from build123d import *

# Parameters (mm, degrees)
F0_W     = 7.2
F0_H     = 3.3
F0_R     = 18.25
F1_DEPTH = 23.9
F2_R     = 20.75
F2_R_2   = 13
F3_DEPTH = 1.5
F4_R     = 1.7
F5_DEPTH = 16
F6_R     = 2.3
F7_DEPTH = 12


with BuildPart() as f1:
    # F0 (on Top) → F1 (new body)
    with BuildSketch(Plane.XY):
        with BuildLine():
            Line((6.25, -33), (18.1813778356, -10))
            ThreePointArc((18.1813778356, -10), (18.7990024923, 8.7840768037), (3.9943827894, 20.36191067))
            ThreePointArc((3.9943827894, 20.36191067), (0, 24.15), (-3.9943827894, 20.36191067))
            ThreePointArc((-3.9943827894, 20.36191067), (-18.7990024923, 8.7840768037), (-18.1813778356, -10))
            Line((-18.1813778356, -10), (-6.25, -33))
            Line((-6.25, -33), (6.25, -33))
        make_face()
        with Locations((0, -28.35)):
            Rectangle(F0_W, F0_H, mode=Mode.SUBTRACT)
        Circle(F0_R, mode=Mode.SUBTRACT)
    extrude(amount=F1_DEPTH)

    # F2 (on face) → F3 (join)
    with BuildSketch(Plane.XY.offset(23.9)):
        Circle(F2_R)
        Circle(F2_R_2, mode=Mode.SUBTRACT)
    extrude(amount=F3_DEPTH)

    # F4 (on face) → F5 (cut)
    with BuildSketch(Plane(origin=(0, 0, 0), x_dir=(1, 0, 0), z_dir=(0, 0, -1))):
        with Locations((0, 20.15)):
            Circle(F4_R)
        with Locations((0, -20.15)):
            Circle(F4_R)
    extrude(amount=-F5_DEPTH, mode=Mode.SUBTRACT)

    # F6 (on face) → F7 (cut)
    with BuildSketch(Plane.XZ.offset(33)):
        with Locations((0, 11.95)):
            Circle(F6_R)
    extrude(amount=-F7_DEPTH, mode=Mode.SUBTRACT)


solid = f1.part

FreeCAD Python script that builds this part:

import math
import FreeCAD as App
import Part
import Sketcher


def add_polygon(sketch, points):
    """Adds a closed chain of lines whose ends are joined by coincident constraints."""
    first, n = sketch.GeometryCount, len(points)
    for a, b in zip(points, points[1:] + points[:1]):
        sketch.addGeometry(Part.LineSegment(App.Vector(*a, 0), App.Vector(*b, 0)), False)
    for i in range(n):
        sketch.addConstraint(Sketcher.Constraint("Coincident", first + i, 2, first + (i + 1) % n, 1))

doc = App.newDocument("Part")
body = doc.addObject("PartDesign::Body", "Body")

# Sketch on XY plane
sketch1 = body.newObject("Sketcher::SketchObject", "Sketch")
sketch1.AttachmentSupport = (doc.getObject("XY_Plane"), [""])
sketch1.MapMode = "FlatFace"
sketch1.addGeometry(Part.LineSegment(App.Vector(6.25, -33, 0), App.Vector(18.181378, -10, 0)), False)  # 0
sketch1.addGeometry(Part.ArcOfCircle(Part.Circle(App.Vector(0, 0, 0), App.Vector(0, 0, 1), 20.75), math.radians(-28.81138), math.radians(78.901261)), False)  # 1
sketch1.addGeometry(Part.ArcOfCircle(Part.Circle(App.Vector(0, 20.15, 0), App.Vector(0, 0, 1), 4), math.radians(3.036818), math.radians(176.963182)), False)  # 2
sketch1.addGeometry(Part.ArcOfCircle(Part.Circle(App.Vector(0, 0, 0), App.Vector(0, 0, 1), 20.75), math.radians(101.098739), math.radians(208.81138)), False)  # 3
sketch1.addGeometry(Part.LineSegment(App.Vector(-18.181378, -10, 0), App.Vector(-6.25, -33, 0)), False)  # 4
sketch1.addGeometry(Part.LineSegment(App.Vector(-6.25, -33, 0), App.Vector(6.25, -33, 0)), False)  # 5
add_polygon(sketch1, [(3.6, -30), (-3.6, -30), (-3.6, -26.7), (3.6, -26.7)])  # lines 6-9
sketch1.addGeometry(Part.Circle(App.Vector(0, 0, 0), App.Vector(0, 0, 1), 18.25), False)  # 10
sketch1.addConstraint([
    Sketcher.Constraint("Coincident", 0, 2, 1, 1),
    Sketcher.Constraint("Coincident", 1, 2, 2, 1),
    Sketcher.Constraint("Coincident", 2, 2, 3, 1),
    Sketcher.Constraint("Coincident", 3, 2, 4, 1),
    Sketcher.Constraint("Coincident", 4, 2, 5, 1),
    Sketcher.Constraint("Coincident", 5, 2, 0, 1),
    Sketcher.Constraint("Horizontal", 5),
    Sketcher.Constraint("Horizontal", 6),
    Sketcher.Constraint("Vertical", 7),
    Sketcher.Constraint("Horizontal", 8),
    Sketcher.Constraint("Vertical", 9),
    Sketcher.Constraint("Coincident", 1, 3, -1, 1),
    Sketcher.Constraint("Coincident", 3, 3, -1, 1),
    Sketcher.Constraint("Coincident", 10, 3, -1, 1),
    Sketcher.Constraint("Equal", 1, 3),
    Sketcher.Constraint("PointOnObject", 2, 3, -2),
    Sketcher.Constraint("Horizontal", 0, 2, 3, 2),
    Sketcher.Constraint("Equal", 0, 4),
    Sketcher.Constraint("Radius", 2, 4.0),
    Sketcher.Constraint("Diameter", 10, 36.5),
    Sketcher.Constraint("Radius", 1, 20.75),
    Sketcher.Constraint("DistanceX", 5, 1, 5, 2, 12.5),
    Sketcher.Constraint("DistanceX", 6, 2, 6, 1, 7.2),
    Sketcher.Constraint("DistanceY", 7, 1, 7, 2, 3.3),
    Sketcher.Constraint("DistanceY", 0, 2, -1, 1, 10.0),
    Sketcher.Constraint("DistanceY", 4, 2, -1, 1, 33.0),
    Sketcher.Constraint("DistanceY", 6, 2, -1, 1, 30.0),
    Sketcher.Constraint("DistanceX", 6, 2, -1, 1, 3.6),
    Sketcher.Constraint("DistanceY", -1, 1, 2, 3, 20.15),
])
pad1 = body.newObject("PartDesign::Pad", "Pad")
pad1.Profile = sketch1
pad1.Length = 23.9

# Sketch on XY plane
sketch2 = body.newObject("Sketcher::SketchObject", "Sketch001")
sketch2.AttachmentSupport = (doc.getObject("XY_Plane"), [""])
sketch2.MapMode = "FlatFace"
sketch2.AttachmentOffset = App.Placement(App.Vector(0, 0, 23.9), App.Rotation())
sketch2.addGeometry([
    Part.Circle(App.Vector(0, 0, 0), App.Vector(0, 0, 1), 20.75),
    Part.Circle(App.Vector(0, 0, 0), App.Vector(0, 0, 1), 13),
], False)
sketch2.addConstraint([
    Sketcher.Constraint("Coincident", 0, 3, -1, 1),
    Sketcher.Constraint("Coincident", 1, 3, -1, 1),
    Sketcher.Constraint("Diameter", 1, 26.0),
    Sketcher.Constraint("Diameter", 0, 41.5),
])
pad2 = body.newObject("PartDesign::Pad", "Pad001")
pad2.Profile = sketch2
pad2.Length = 1.5

# Sketch on XY plane
sketch3 = body.newObject("Sketcher::SketchObject", "Sketch002")
sketch3.AttachmentSupport = (doc.getObject("XY_Plane"), [""])
sketch3.MapMode = "FlatFace"
sketch3.addGeometry([
    Part.Circle(App.Vector(0, -20.15, 0), App.Vector(0, 0, 1), 1.7),
    Part.Circle(App.Vector(0, 20.15, 0), App.Vector(0, 0, 1), 1.7),
], False)
sketch3.addConstraint([
    Sketcher.Constraint("Equal", 0, 1),
    Sketcher.Constraint("Symmetric", 0, 3, 1, 3, -1, 1),
    Sketcher.Constraint("PointOnObject", 0, 3, -2),
    Sketcher.Constraint("Diameter", 0, 3.4),
    Sketcher.Constraint("DistanceY", 0, 3, 1, 3, 40.3),
])
pocket1 = body.newObject("PartDesign::Pocket", "Pocket")
pocket1.Profile = sketch3
pocket1.Length = 16
pocket1.Reversed = True

# Sketch on XZ plane
sketch4 = body.newObject("Sketcher::SketchObject", "Sketch003")
sketch4.AttachmentSupport = (doc.getObject("XZ_Plane"), [""])
sketch4.MapMode = "FlatFace"
sketch4.AttachmentOffset = App.Placement(App.Vector(0, 0, 33), App.Rotation())
sketch4.addGeometry(Part.Circle(App.Vector(0, 11.95, 0), App.Vector(0, 0, 1), 2.3), False)
sketch4.addConstraint([
    Sketcher.Constraint("PointOnObject", 0, 3, -2),
    Sketcher.Constraint("Diameter", 0, 4.6),
    Sketcher.Constraint("DistanceY", -1, 1, 0, 3, 11.95),
])
pocket2 = body.newObject("PartDesign::Pocket", "Pocket001")
pocket2.Profile = sketch4
pocket2.Length = 12

doc.recompute()
